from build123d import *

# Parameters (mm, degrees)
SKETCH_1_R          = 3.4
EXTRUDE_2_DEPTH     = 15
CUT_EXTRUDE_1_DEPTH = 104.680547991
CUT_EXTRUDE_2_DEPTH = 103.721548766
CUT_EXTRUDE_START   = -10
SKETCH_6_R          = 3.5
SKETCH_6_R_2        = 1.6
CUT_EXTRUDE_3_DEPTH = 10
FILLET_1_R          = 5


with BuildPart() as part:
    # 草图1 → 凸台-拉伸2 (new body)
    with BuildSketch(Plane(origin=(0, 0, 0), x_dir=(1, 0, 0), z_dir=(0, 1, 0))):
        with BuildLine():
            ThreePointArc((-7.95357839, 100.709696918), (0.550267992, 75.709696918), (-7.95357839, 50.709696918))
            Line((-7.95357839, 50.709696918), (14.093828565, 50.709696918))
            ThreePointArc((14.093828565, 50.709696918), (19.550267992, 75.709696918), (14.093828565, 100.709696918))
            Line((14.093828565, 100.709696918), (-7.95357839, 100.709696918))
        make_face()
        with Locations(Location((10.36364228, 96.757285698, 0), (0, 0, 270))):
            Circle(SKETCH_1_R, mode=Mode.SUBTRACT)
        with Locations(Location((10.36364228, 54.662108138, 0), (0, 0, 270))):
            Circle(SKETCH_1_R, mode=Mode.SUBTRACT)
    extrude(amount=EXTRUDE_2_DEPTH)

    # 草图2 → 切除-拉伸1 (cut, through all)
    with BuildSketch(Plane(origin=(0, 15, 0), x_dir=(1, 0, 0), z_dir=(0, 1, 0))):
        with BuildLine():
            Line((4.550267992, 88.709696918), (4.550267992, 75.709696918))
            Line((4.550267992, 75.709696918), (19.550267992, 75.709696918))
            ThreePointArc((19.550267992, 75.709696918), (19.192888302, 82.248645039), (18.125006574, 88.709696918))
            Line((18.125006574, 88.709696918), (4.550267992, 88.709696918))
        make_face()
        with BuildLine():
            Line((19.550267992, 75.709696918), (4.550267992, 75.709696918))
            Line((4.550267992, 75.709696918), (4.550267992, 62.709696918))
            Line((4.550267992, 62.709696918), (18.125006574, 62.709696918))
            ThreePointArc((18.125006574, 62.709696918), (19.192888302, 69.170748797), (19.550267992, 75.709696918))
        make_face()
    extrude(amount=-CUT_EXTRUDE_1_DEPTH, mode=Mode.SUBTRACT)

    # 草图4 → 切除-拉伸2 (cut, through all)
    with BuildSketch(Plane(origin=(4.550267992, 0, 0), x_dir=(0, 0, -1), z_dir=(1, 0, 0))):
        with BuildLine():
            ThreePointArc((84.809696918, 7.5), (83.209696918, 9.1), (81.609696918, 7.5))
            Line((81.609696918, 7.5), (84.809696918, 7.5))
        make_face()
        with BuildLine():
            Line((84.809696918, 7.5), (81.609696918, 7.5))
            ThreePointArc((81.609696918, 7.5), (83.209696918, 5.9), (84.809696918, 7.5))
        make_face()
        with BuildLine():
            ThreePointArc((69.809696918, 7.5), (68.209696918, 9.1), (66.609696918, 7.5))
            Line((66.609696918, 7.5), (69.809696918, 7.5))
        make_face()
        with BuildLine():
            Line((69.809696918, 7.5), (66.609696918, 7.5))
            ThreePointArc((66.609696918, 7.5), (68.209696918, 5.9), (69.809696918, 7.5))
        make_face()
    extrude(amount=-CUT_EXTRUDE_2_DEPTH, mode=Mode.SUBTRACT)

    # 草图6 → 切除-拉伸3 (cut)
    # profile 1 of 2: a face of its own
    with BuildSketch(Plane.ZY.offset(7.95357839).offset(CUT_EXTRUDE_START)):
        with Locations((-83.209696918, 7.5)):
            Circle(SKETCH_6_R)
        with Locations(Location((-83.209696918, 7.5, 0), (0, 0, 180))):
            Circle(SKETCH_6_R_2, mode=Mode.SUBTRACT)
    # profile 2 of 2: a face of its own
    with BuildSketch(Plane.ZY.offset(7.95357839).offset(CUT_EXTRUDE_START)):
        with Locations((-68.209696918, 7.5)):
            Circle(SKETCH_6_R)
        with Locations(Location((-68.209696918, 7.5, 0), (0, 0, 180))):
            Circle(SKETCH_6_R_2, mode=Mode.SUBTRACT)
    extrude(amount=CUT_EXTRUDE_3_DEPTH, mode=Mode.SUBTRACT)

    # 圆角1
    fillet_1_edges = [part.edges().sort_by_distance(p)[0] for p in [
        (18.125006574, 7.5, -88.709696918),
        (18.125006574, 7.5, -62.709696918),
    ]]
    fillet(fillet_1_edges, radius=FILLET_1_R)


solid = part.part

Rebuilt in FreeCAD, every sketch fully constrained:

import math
import FreeCAD as App
import Part
import Sketcher


def edges_at(feature, points):
    """Names of the edges that pass closest to the given points."""
    edges = feature.Shape.Edges
    near = lambda p: min(range(len(edges)), key=lambda i: edges[i].distToShape(Part.Vertex(*p))[0])
    return sorted({f"Edge{near(p) + 1}" for p in points})

doc = App.newDocument("Part")
params = doc.addObject("Spreadsheet::Sheet", "Params")
for row, (alias, value) in enumerate([
    ("sketch1_radius", "41 mm"),
    ("sketch1_radius2", "60 mm"),
    ("sketch1_diameter", "6.8 mm"),
    ("sketch1_height", "25 mm"),
    ("pad1_length", "15 mm"),
    ("sketch2_radius", "60 mm"),
    ("sketch2_height", "26 mm"),
    ("sketch3_diameter", "3.2 mm"),
    ("sketch4_diameter", "7 mm"),
    ("sketch4_diameter2", "3.2 mm"),
    ("pocket3_length", "10 mm"),
    ("fillet_radius", "5 mm"),
], start=1):
    params.set(f"A{row}", alias)
    params.set(f"B{row}", "=" + value)
    params.setAlias(f"B{row}", alias)

body = doc.addObject("PartDesign::Body", "Body")

# Sketch on XZ plane
sketch1 = body.newObject("Sketcher::SketchObject", "Sketch")
sketch1.AttachmentSupport = (doc.getObject("XZ_Plane"), [""])
sketch1.MapMode = "FlatFace"
sketch1.addGeometry([
    Part.ArcOfCircle(Part.Circle(App.Vector(-40.4, -75.7, 0), App.Vector(0, 0, 1), 41), math.radians(-38), math.radians(38)),  # 0
    Part.LineSegment(App.Vector(-8, -50.7, 0), App.Vector(14.1, -50.7, 0)),  # 1
    Part.ArcOfCircle(Part.Circle(App.Vector(-40.4, -75.7, 0), App.Vector(0, 0, 1), 60), math.radians(-25), math.radians(25)),  # 2
    Part.LineSegment(App.Vector(14.1, -100.7, 0), App.Vector(-8, -100.7, 0)),  # 3
    Part.Circle(App.Vector(10.4, -54.7, 0), App.Vector(0, 0, 1), 3.4),  # 4
    Part.Circle(App.Vector(10.4, -96.8, 0), App.Vector(0, 0, 1), 3.4),  # 5
], False)
sketch1.addConstraint([
    Sketcher.Constraint("Coincident", 0, 2, 1, 1),
    Sketcher.Constraint("Coincident", 1, 2, 2, 2),
    Sketcher.Constraint("Coincident", 2, 1, 3, 1),
    Sketcher.Constraint("Coincident", 3, 2, 0, 1),
    Sketcher.Constraint("Horizontal", 1),
    Sketcher.Constraint("Horizontal", 3),
    Sketcher.Constraint("Coincident", 2, 3, 0, 3),
    Sketcher.Constraint("Equal", 4, 5),
    Sketcher.Constraint("Vertical", 4, 3, 5, 3),
    Sketcher.Constraint("Vertical", 1, 2, 2, 1),
    Sketcher.Constraint("Radius", 0, 41.0),
    Sketcher.Constraint("Radius", 2, 60.0),
    Sketcher.Constraint("Diameter", 4, 6.8),
    Sketcher.Constraint("DistanceY", 0, 3, 0, 2, 25.0),
    Sketcher.Constraint("DistanceY", 4, 3, -1, 1, 54.662108),
    Sketcher.Constraint("DistanceX", 0, 2, -1, 1, 7.953578),
    Sketcher.Constraint("DistanceY", 0, 3, 4, 3, 21.047589),
    Sketcher.Constraint("DistanceY", 5, 3, 0, 3, 21.047589),
    Sketcher.Constraint("DistanceX", 0, 2, 4, 3, 18.317221),
])
sketch1.setExpression("Constraints[10]", "Params.sketch1_radius")
sketch1.setExpression("Constraints[11]", "Params.sketch1_radius2")
sketch1.setExpression("Constraints[12]", "Params.sketch1_diameter")
sketch1.setExpression("Constraints[13]", "Params.sketch1_height")
pad1 = body.newObject("PartDesign::Pad", "Pad")
pad1.Profile = sketch1
pad1.setExpression("Length", "Params.pad1_length")
pad1.Reversed = True

# Sketch on XZ plane
sketch2 = body.newObject("Sketcher::SketchObject", "Sketch001")
sketch2.AttachmentSupport = (doc.getObject("XZ_Plane"), [""])
sketch2.MapMode = "FlatFace"
sketch2.AttachmentOffset = App.Placement(App.Vector(0, 0, -15), App.Rotation())
sketch2.addGeometry([
    Part.LineSegment(App.Vector(5, -89, 0), App.Vector(5, -63, 0)),  # 0
    Part.LineSegment(App.Vector(5, -63, 0), App.Vector(18, -63, 0)),  # 1
    Part.ArcOfCircle(Part.Circle(App.Vector(-40, -76, 0), App.Vector(0, 0, 1), 60), math.radians(0), math.radians(12.51)),  # 2
    Part.ArcOfCircle(Part.Circle(App.Vector(-40, -76, 0), App.Vector(0, 0, 1), 60), math.radians(-12.51), math.radians(0)),  # 3
    Part.LineSegment(App.Vector(18, -89, 0), App.Vector(5, -89, 0)),  # 4
], False)
sketch2.addConstraint([
    Sketcher.Constraint("Coincident", 0, 2, 1, 1),
    Sketcher.Constraint("Coincident", 1, 2, 2, 2),
    Sketcher.Constraint("Tangent", 2, 1, 3, 2),
    Sketcher.Constraint("Coincident", 3, 1, 4, 1),
    Sketcher.Constraint("Coincident", 4, 2, 0, 1),
    Sketcher.Constraint("Vertical", 0),
    Sketcher.Constraint("Horizontal", 1),
    Sketcher.Constraint("Horizontal", 4),
    Sketcher.Constraint("Equal", 2, 3),
    Sketcher.Constraint("Horizontal", 3, 3, 2, 1),
    Sketcher.Constraint("Vertical", 1, 2, 3, 1),
    Sketcher.Constraint("Radius", 2, 60.0),
    Sketcher.Constraint("DistanceY", 0, 1, 0, 2, 26.0),
    Sketcher.Constraint("DistanceX", 3, 3, 0, 2, 45.0),
    Sketcher.Constraint("DistanceX", 2, 3, -1, 1, 40.449732),
    Sketcher.Constraint("DistanceY", 2, 3, -1, 1, 75.709697),
])
sketch2.setExpression("Constraints[11]", "Params.sketch2_radius")
sketch2.setExpression("Constraints[12]", "Params.sketch2_height")
pocket1 = body.newObject("PartDesign::Pocket", "Pocket")
pocket1.Profile = sketch2
pocket1.Type = "ThroughAll"
pocket1.Reversed = True

# Sketch on YZ plane
sketch3 = body.newObject("Sketcher::SketchObject", "Sketch002")
sketch3.AttachmentSupport = (doc.getObject("YZ_Plane"), [""])
sketch3.MapMode = "FlatFace"
sketch3.AttachmentOffset = App.Placement(App.Vector(0, 0, 4.550268), App.Rotation())
sketch3.addGeometry([
    Part.Circle(App.Vector(7.5, -83.2, 0), App.Vector(0, 0, 1), 1.6),
    Part.Circle(App.Vector(7.5, -68.2, 0), App.Vector(0, 0, 1), 1.6),
], False)
sketch3.addConstraint([
    Sketcher.Constraint("Equal", 0, 1),
    Sketcher.Constraint("Vertical", 0, 3, 1, 3),
    Sketcher.Constraint("Diameter", 0, 3.2),
    Sketcher.Constraint("DistanceY", 0, 3, 1, 3, 15.0),
    Sketcher.Constraint("DistanceX", -1, 1, 0, 3, 7.5),
    Sketcher.Constraint("DistanceY", 0, 3, -1, 1, 83.209697),
])
sketch3.setExpression("Constraints[2]", "Params.sketch3_diameter")
pocket2 = body.newObject("PartDesign::Pocket", "Pocket001")
pocket2.Profile = sketch3
pocket2.Type = "ThroughAll"

# Sketch on YZ plane
sketch4 = body.newObject("Sketcher::SketchObject", "Sketch003")
sketch4.AttachmentSupport = (doc.getObject("YZ_Plane"), [""])
sketch4.MapMode = "FlatFace"
sketch4.AttachmentOffset = App.Placement(App.Vector(0, 0, 2.046422), App.Rotation())
sketch4.addGeometry([
    Part.Circle(App.Vector(7.5, -83.2, 0), App.Vector(0, 0, 1), 3.5),
    Part.Circle(App.Vector(7.5, -83.2, 0), App.Vector(0, 0, 1), 1.6),
    Part.Circle(App.Vector(7.5, -68.2, 0), App.Vector(0, 0, 1), 3.5),
    Part.Circle(App.Vector(7.5, -68.2, 0), App.Vector(0, 0, 1), 1.6),
], False)
sketch4.addConstraint([
    Sketcher.Constraint("Coincident", 1, 3, 0, 3),
    Sketcher.Constraint("Coincident", 3, 3, 2, 3),
    Sketcher.Constraint("Equal", 0, 2),
    Sketcher.Constraint("Equal", 1, 3),
    Sketcher.Constraint("Vertical", 1, 3, 2, 3),
    Sketcher.Constraint("Diameter", 0, 7.0),
    Sketcher.Constraint("Diameter", 1, 3.2),
    Sketcher.Constraint("DistanceY", 0, 3, 2, 3, 15.0),
    Sketcher.Constraint("DistanceX", -1, 1, 0, 3, 7.5),
    Sketcher.Constraint("DistanceY", 0, 3, -1, 1, 83.209697),
])
sketch4.setExpression("Constraints[5]", "Params.sketch4_diameter")
sketch4.setExpression("Constraints[6]", "Params.sketch4_diameter2")
pocket3 = body.newObject("PartDesign::Pocket", "Pocket002")
pocket3.Profile = sketch4
pocket3.setExpression("Length", "Params.pocket3_length")
doc.recompute()

fillet = body.newObject("PartDesign::Fillet", "Fillet")
fillet.Base = (pocket3, edges_at(pocket3, [(18.125, 7.5, -88.71), (18.125, 7.5, -62.71)]))
fillet.setExpression("Radius", "Params.fillet_radius")

doc.recompute()
